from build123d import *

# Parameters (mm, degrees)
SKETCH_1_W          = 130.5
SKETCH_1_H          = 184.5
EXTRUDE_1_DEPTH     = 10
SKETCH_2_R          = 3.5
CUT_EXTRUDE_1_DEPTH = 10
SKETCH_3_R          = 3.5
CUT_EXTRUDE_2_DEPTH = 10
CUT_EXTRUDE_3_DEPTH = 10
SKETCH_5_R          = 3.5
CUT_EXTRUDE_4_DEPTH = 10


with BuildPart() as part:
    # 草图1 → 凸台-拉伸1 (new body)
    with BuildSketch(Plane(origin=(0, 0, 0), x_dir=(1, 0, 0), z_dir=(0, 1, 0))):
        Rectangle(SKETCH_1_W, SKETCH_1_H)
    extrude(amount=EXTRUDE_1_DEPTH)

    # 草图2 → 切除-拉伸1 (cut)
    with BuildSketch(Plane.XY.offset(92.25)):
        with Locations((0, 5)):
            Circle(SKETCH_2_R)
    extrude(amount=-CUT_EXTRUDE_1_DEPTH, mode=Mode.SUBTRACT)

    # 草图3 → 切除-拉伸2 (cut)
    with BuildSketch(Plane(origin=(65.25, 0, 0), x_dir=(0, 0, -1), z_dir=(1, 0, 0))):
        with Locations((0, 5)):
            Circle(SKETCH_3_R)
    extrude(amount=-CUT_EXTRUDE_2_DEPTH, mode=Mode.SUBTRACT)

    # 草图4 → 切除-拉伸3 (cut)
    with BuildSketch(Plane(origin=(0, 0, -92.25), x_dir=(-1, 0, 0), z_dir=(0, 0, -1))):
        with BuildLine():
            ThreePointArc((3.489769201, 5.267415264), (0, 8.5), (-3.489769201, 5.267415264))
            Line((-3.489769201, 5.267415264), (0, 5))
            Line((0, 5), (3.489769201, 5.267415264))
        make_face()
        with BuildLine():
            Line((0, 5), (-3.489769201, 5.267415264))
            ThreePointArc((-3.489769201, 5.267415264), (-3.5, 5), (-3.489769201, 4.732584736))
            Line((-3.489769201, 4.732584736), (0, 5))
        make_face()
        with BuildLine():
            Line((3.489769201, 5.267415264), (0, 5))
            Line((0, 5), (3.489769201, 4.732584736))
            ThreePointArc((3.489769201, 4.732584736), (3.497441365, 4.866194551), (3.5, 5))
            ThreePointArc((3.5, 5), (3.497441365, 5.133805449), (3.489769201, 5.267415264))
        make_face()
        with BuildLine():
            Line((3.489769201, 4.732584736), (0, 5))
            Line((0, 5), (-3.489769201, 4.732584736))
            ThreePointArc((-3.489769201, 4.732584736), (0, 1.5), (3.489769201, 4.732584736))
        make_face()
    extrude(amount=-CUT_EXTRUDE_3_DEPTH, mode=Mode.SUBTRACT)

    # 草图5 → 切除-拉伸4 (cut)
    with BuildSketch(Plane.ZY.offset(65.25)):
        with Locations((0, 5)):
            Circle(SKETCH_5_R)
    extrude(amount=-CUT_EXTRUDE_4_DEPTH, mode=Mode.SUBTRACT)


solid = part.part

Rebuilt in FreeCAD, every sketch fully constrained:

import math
import FreeCAD as App
import Part
import Sketcher

V = App.Vector


def add_polygon(sketch, points):
    """Adds a closed chain of lines whose ends are joined by coincident constraints."""
    first, n = sketch.GeometryCount, len(points)
    for a, b in zip(points, points[1:] + points[:1]):
        sketch.addGeometry(Part.LineSegment(App.Vector(*a, 0), App.Vector(*b, 0)), False)
    for i in range(n):
        sketch.addConstraint(Sketcher.Constraint("Coincident", first + i, 2, first + (i + 1) % n, 1))

doc = App.newDocument("Part")
body = doc.addObject("PartDesign::Body", "Body")

sketch1 = body.newObject("Sketcher::SketchObject", "Sketch")
sketch1.AttachmentSupport = (doc.getObject("XZ_Plane"), [""])
sketch1.MapMode = "FlatFace"
add_polygon(sketch1, [(-65, -92), (-65, 92), (65, 92), (65, -92)])
sketch1.addConstraint([
    Sketcher.Constraint("Vertical", 0),
    Sketcher.Constraint("Horizontal", 1),
    Sketcher.Constraint("Vertical", 2),
    Sketcher.Constraint("Horizontal", 3),
    Sketcher.Constraint("Symmetric", 0, 2, 2, 2, -1, 1),
    Sketcher.Constraint("DistanceX", 1, 1, 1, 2, 130.5),
    Sketcher.Constraint("DistanceY", 0, 1, 0, 2, 184.5),
])
pad1 = body.newObject("PartDesign::Pad", "Pad")
pad1.Profile = sketch1
pad1.Length = 10
pad1.Reversed = True

sketch2 = body.newObject("Sketcher::SketchObject", "Sketch001")
sketch2.AttachmentSupport = (doc.getObject("XY_Plane"), [""])
sketch2.MapMode = "FlatFace"
sketch2.AttachmentOffset = App.Placement(V(0, 0, 92.25), App.Rotation())
sketch2.addGeometry(Part.Circle(V(0, 5, 0), V(0, 0, 1), 3.5), False)
sketch2.addConstraint([
    Sketcher.Constraint("PointOnObject", 0, 3, -2),
    Sketcher.Constraint("Diameter", 0, 7.0),
    Sketcher.Constraint("DistanceY", -1, 1, 0, 3, 5.0),
])
pocket1 = body.newObject("PartDesign::Pocket", "Pocket")
pocket1.Profile = sketch2
pocket1.Length = 10

sketch3 = body.newObject("Sketcher::SketchObject", "Sketch002")
sketch3.AttachmentSupport = (doc.getObject("YZ_Plane"), [""])
sketch3.MapMode = "FlatFace"
sketch3.AttachmentOffset = App.Placement(V(0, 0, 65.25), App.Rotation())
sketch3.addGeometry(Part.Circle(V(5, 0, 0), V(0, 0, 1), 3.5), False)
sketch3.addConstraint([
    Sketcher.Constraint("PointOnObject", 0, 3, -1),
    Sketcher.Constraint("Diameter", 0, 7.0),
    Sketcher.Constraint("DistanceX", -1, 1, 0, 3, 5.0),
])
pocket2 = body.newObject("PartDesign::Pocket", "Pocket001")
pocket2.Profile = sketch3
pocket2.Length = 10

sketch4 = body.newObject("Sketcher::SketchObject", "Sketch003")
sketch4.AttachmentSupport = (doc.getObject("XY_Plane"), [""])
sketch4.MapMode = "FlatFace"
sketch4.AttachmentOffset = App.Placement(V(0, 0, -92.25), App.Rotation())
sketch4.addGeometry([
    Part.ArcOfCircle(Part.Circle(V(0, 5, 0), V(0, 0, 1), 3.5), math.radians(-176), math.radians(-4)),
    Part.ArcOfCircle(Part.Circle(V(0, 5, 0), V(0, 0, 1), 3.5), math.radians(-180), math.radians(-175.62)),
    Part.ArcOfCircle(Part.Circle(V(0, 5, 0), V(0, 0, 1), 3.5), math.radians(175.62), math.radians(180)),
    Part.ArcOfCircle(Part.Circle(V(0, 5, 0), V(0, 0, 1), 3.5), math.radians(4), math.radians(176)),
    Part.ArcOfCircle(Part.Circle(V(0, 5, 0), V(0, 0, 1), 3.5), math.radians(-4.38), math.radians(4.38)),
], False)
sketch4.addConstraint([
    Sketcher.Constraint("Tangent", 0, 1, 1, 2),
    Sketcher.Constraint("Tangent", 1, 1, 2, 2),
    Sketcher.Constraint("Tangent", 2, 1, 3, 2),
    Sketcher.Constraint("Tangent", 3, 1, 4, 2),
    Sketcher.Constraint("Tangent", 4, 1, 0, 2),
    Sketcher.Constraint("Coincident", 2, 3, 0, 3),
    Sketcher.Constraint("Symmetric", 2, 1, 3, 1, -2),
    Sketcher.Constraint("Horizontal", 4, 3, 1, 1),
    Sketcher.Constraint("Horizontal", 0, 1, 4, 1),
    Sketcher.Constraint("Vertical", 0, 1, 2, 1),
    Sketcher.Constraint("Radius", 0, 3.5),
    Sketcher.Constraint("DistanceY", -1, 1, 0, 3, 5.0),
    Sketcher.Constraint("DistanceX", 0, 1, -1, 1, 3.489769),
])
pocket3 = body.newObject("PartDesign::Pocket", "Pocket002")
pocket3.Profile = sketch4
pocket3.Length = 10
pocket3.Reversed = True

sketch5 = body.newObject("Sketcher::SketchObject", "Sketch004")
sketch5.AttachmentSupport = (doc.getObject("YZ_Plane"), [""])
sketch5.MapMode = "FlatFace"
sketch5.AttachmentOffset = App.Placement(V(0, 0, -65.25), App.Rotation())
sketch5.addGeometry(Part.Circle(V(5, 0, 0), V(0, 0, 1), 3.5), False)
sketch5.addConstraint([
    Sketcher.Constraint("PointOnObject", 0, 3, -1),
    Sketcher.Constraint("Diameter", 0, 7.0),
    Sketcher.Constraint("DistanceX", -1, 1, 0, 3, 5.0),
])
pocket4 = body.newObject("PartDesign::Pocket", "Pocket003")
pocket4.Profile = sketch5
pocket4.Length = 10
pocket4.Reversed = True

doc.recompute()
